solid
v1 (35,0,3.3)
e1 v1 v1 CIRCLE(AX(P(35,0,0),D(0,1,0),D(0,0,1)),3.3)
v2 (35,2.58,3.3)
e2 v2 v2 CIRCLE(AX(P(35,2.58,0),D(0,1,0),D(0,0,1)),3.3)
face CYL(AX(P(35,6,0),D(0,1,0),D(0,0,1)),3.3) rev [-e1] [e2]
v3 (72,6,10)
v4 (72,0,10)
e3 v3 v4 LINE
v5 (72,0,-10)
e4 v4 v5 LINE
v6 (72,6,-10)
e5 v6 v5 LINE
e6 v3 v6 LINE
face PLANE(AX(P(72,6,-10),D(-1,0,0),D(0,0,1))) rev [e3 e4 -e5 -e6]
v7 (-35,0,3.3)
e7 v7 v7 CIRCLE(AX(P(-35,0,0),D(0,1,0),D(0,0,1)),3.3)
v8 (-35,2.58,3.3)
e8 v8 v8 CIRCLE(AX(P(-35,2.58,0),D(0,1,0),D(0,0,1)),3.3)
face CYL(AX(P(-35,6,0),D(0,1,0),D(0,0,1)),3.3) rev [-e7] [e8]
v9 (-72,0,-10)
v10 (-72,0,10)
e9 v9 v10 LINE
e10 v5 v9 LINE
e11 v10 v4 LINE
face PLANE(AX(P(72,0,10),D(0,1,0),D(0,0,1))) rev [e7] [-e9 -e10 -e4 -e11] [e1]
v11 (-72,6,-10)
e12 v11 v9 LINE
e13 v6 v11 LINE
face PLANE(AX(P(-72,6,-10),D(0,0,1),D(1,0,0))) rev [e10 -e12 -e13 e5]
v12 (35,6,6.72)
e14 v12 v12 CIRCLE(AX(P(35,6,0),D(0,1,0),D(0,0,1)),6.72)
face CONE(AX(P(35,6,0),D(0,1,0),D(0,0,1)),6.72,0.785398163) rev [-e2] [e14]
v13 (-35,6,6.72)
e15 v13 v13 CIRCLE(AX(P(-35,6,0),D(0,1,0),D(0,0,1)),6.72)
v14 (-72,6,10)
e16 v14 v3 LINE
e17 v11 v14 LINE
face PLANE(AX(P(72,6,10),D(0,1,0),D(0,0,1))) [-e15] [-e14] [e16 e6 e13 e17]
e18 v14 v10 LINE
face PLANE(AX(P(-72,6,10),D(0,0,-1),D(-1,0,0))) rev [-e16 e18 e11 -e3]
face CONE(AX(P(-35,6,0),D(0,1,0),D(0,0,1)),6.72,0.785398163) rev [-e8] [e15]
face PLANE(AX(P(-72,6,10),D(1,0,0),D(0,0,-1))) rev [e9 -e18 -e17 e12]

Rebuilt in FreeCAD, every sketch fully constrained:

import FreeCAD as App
import Part
import Sketcher
from FreeCAD import Vector
Q = App.Units.Quantity


def add_polygon(sketch, points):
    """Adds a closed chain of lines whose ends are joined by coincident constraints."""
    first, n = sketch.GeometryCount, len(points)
    for a, b in zip(points, points[1:] + points[:1]):
        sketch.addGeometry(Part.LineSegment(App.Vector(*a, 0), App.Vector(*b, 0)), False)
    for i in range(n):
        sketch.addConstraint(Sketcher.Constraint("Coincident", first + i, 2, first + (i + 1) % n, 1))

doc = App.newDocument("Part")
params = doc.addObject("Spreadsheet::Sheet", "Params")
for row, (alias, value) in enumerate([
    ("sketch1_width", "144 mm"),
    ("sketch1_height", "20 mm"),
    ("pad1_length", "6 mm"),
    ("sketch2_width", "6 mm"),
    ("sketch2_height", "3.3 mm"),
    ("sketch2_width2", "2.58 mm"),
    ("groove_angle", "360 deg"),
    ("linearpattern_pitch", "70 mm"),
], start=1):
    params.set(f"A{row}", alias)
    params.set(f"B{row}", "=" + value)
    params.setAlias(f"B{row}", alias)

body = doc.addObject("PartDesign::Body", "Body")

sketch1 = body.newObject("Sketcher::SketchObject", "Sketch")
sketch1.AttachmentSupport = (doc.getObject("XZ_Plane"), [""])
sketch1.MapMode = "FlatFace"
add_polygon(sketch1, [(-72, -10), (-72, 10), (72, 10), (72, -10)])
sketch1.addConstraint([
    Sketcher.Constraint("Vertical", 0),
    Sketcher.Constraint("Horizontal", 1),
    Sketcher.Constraint("Vertical", 2),
    Sketcher.Constraint("Horizontal", 3),
    Sketcher.Constraint("Symmetric", 0, 2, 2, 2, -1, 1),
    Sketcher.Constraint("DistanceX", 1, 1, 1, 2, 144.0),
    Sketcher.Constraint("DistanceY", 0, 1, 0, 2, 20.0),
])
sketch1.setExpression("Constraints[9]", "Params.sketch1_width")
sketch1.setExpression("Constraints[10]", "Params.sketch1_height")
pad1 = body.newObject("PartDesign::Pad", "Pad")
pad1.Profile = sketch1
pad1.setExpression("Length", "Params.pad1_length")
pad1.Reversed = True

sketch2 = body.newObject("Sketcher::SketchObject", "Sketch001")
sketch2.AttachmentSupport = (doc.getObject("YZ_Plane"), [""])
sketch2.MapMode = "FlatFace"
sketch2.AttachmentOffset = App.Placement(Vector(0, 0, -35), App.Rotation())
add_polygon(sketch2, [(0, 0), (6, 0), (6, 6.7), (2.6, 3.3), (0, 3.3)])
sketch2.addConstraint([
    Sketcher.Constraint("Horizontal", 0),
    Sketcher.Constraint("Vertical", 1),
    Sketcher.Constraint("Horizontal", 3),
    Sketcher.Constraint("Vertical", 4),
    Sketcher.Constraint("Coincident", 4, 2, -1, 1),
    Sketcher.Constraint("DistanceX", 0, 1, 0, 2, 6.0),
    Sketcher.Constraint("Angle", 2, Q("-135 deg")),
    Sketcher.Constraint("DistanceY", 4, 2, 4, 1, 3.3),
    Sketcher.Constraint("DistanceX", 3, 2, 3, 1, 2.58),
])
sketch2.setExpression("Constraints[10]", "Params.sketch2_width")
sketch2.setExpression("Constraints[12]", "Params.sketch2_height")
sketch2.setExpression("Constraints[13]", "Params.sketch2_width2")
groove = body.newObject("PartDesign::Groove", "Groove")
groove.Profile = sketch2
groove.ReferenceAxis = (sketch2, ["H_Axis"])
groove.setExpression("Angle", "Params.groove_angle")
doc.recompute()

linearpattern = body.newObject("PartDesign::LinearPattern", "LinearPattern")
linearpattern.Originals = [groove]
linearpattern.Direction = (doc.getObject("X_Axis"), [""])
linearpattern.Mode = "offset"
linearpattern.setExpression("Offset", "Params.linearpattern_pitch")
linearpattern.Occurrences = 2
body.Tip = linearpattern

doc.recompute()
